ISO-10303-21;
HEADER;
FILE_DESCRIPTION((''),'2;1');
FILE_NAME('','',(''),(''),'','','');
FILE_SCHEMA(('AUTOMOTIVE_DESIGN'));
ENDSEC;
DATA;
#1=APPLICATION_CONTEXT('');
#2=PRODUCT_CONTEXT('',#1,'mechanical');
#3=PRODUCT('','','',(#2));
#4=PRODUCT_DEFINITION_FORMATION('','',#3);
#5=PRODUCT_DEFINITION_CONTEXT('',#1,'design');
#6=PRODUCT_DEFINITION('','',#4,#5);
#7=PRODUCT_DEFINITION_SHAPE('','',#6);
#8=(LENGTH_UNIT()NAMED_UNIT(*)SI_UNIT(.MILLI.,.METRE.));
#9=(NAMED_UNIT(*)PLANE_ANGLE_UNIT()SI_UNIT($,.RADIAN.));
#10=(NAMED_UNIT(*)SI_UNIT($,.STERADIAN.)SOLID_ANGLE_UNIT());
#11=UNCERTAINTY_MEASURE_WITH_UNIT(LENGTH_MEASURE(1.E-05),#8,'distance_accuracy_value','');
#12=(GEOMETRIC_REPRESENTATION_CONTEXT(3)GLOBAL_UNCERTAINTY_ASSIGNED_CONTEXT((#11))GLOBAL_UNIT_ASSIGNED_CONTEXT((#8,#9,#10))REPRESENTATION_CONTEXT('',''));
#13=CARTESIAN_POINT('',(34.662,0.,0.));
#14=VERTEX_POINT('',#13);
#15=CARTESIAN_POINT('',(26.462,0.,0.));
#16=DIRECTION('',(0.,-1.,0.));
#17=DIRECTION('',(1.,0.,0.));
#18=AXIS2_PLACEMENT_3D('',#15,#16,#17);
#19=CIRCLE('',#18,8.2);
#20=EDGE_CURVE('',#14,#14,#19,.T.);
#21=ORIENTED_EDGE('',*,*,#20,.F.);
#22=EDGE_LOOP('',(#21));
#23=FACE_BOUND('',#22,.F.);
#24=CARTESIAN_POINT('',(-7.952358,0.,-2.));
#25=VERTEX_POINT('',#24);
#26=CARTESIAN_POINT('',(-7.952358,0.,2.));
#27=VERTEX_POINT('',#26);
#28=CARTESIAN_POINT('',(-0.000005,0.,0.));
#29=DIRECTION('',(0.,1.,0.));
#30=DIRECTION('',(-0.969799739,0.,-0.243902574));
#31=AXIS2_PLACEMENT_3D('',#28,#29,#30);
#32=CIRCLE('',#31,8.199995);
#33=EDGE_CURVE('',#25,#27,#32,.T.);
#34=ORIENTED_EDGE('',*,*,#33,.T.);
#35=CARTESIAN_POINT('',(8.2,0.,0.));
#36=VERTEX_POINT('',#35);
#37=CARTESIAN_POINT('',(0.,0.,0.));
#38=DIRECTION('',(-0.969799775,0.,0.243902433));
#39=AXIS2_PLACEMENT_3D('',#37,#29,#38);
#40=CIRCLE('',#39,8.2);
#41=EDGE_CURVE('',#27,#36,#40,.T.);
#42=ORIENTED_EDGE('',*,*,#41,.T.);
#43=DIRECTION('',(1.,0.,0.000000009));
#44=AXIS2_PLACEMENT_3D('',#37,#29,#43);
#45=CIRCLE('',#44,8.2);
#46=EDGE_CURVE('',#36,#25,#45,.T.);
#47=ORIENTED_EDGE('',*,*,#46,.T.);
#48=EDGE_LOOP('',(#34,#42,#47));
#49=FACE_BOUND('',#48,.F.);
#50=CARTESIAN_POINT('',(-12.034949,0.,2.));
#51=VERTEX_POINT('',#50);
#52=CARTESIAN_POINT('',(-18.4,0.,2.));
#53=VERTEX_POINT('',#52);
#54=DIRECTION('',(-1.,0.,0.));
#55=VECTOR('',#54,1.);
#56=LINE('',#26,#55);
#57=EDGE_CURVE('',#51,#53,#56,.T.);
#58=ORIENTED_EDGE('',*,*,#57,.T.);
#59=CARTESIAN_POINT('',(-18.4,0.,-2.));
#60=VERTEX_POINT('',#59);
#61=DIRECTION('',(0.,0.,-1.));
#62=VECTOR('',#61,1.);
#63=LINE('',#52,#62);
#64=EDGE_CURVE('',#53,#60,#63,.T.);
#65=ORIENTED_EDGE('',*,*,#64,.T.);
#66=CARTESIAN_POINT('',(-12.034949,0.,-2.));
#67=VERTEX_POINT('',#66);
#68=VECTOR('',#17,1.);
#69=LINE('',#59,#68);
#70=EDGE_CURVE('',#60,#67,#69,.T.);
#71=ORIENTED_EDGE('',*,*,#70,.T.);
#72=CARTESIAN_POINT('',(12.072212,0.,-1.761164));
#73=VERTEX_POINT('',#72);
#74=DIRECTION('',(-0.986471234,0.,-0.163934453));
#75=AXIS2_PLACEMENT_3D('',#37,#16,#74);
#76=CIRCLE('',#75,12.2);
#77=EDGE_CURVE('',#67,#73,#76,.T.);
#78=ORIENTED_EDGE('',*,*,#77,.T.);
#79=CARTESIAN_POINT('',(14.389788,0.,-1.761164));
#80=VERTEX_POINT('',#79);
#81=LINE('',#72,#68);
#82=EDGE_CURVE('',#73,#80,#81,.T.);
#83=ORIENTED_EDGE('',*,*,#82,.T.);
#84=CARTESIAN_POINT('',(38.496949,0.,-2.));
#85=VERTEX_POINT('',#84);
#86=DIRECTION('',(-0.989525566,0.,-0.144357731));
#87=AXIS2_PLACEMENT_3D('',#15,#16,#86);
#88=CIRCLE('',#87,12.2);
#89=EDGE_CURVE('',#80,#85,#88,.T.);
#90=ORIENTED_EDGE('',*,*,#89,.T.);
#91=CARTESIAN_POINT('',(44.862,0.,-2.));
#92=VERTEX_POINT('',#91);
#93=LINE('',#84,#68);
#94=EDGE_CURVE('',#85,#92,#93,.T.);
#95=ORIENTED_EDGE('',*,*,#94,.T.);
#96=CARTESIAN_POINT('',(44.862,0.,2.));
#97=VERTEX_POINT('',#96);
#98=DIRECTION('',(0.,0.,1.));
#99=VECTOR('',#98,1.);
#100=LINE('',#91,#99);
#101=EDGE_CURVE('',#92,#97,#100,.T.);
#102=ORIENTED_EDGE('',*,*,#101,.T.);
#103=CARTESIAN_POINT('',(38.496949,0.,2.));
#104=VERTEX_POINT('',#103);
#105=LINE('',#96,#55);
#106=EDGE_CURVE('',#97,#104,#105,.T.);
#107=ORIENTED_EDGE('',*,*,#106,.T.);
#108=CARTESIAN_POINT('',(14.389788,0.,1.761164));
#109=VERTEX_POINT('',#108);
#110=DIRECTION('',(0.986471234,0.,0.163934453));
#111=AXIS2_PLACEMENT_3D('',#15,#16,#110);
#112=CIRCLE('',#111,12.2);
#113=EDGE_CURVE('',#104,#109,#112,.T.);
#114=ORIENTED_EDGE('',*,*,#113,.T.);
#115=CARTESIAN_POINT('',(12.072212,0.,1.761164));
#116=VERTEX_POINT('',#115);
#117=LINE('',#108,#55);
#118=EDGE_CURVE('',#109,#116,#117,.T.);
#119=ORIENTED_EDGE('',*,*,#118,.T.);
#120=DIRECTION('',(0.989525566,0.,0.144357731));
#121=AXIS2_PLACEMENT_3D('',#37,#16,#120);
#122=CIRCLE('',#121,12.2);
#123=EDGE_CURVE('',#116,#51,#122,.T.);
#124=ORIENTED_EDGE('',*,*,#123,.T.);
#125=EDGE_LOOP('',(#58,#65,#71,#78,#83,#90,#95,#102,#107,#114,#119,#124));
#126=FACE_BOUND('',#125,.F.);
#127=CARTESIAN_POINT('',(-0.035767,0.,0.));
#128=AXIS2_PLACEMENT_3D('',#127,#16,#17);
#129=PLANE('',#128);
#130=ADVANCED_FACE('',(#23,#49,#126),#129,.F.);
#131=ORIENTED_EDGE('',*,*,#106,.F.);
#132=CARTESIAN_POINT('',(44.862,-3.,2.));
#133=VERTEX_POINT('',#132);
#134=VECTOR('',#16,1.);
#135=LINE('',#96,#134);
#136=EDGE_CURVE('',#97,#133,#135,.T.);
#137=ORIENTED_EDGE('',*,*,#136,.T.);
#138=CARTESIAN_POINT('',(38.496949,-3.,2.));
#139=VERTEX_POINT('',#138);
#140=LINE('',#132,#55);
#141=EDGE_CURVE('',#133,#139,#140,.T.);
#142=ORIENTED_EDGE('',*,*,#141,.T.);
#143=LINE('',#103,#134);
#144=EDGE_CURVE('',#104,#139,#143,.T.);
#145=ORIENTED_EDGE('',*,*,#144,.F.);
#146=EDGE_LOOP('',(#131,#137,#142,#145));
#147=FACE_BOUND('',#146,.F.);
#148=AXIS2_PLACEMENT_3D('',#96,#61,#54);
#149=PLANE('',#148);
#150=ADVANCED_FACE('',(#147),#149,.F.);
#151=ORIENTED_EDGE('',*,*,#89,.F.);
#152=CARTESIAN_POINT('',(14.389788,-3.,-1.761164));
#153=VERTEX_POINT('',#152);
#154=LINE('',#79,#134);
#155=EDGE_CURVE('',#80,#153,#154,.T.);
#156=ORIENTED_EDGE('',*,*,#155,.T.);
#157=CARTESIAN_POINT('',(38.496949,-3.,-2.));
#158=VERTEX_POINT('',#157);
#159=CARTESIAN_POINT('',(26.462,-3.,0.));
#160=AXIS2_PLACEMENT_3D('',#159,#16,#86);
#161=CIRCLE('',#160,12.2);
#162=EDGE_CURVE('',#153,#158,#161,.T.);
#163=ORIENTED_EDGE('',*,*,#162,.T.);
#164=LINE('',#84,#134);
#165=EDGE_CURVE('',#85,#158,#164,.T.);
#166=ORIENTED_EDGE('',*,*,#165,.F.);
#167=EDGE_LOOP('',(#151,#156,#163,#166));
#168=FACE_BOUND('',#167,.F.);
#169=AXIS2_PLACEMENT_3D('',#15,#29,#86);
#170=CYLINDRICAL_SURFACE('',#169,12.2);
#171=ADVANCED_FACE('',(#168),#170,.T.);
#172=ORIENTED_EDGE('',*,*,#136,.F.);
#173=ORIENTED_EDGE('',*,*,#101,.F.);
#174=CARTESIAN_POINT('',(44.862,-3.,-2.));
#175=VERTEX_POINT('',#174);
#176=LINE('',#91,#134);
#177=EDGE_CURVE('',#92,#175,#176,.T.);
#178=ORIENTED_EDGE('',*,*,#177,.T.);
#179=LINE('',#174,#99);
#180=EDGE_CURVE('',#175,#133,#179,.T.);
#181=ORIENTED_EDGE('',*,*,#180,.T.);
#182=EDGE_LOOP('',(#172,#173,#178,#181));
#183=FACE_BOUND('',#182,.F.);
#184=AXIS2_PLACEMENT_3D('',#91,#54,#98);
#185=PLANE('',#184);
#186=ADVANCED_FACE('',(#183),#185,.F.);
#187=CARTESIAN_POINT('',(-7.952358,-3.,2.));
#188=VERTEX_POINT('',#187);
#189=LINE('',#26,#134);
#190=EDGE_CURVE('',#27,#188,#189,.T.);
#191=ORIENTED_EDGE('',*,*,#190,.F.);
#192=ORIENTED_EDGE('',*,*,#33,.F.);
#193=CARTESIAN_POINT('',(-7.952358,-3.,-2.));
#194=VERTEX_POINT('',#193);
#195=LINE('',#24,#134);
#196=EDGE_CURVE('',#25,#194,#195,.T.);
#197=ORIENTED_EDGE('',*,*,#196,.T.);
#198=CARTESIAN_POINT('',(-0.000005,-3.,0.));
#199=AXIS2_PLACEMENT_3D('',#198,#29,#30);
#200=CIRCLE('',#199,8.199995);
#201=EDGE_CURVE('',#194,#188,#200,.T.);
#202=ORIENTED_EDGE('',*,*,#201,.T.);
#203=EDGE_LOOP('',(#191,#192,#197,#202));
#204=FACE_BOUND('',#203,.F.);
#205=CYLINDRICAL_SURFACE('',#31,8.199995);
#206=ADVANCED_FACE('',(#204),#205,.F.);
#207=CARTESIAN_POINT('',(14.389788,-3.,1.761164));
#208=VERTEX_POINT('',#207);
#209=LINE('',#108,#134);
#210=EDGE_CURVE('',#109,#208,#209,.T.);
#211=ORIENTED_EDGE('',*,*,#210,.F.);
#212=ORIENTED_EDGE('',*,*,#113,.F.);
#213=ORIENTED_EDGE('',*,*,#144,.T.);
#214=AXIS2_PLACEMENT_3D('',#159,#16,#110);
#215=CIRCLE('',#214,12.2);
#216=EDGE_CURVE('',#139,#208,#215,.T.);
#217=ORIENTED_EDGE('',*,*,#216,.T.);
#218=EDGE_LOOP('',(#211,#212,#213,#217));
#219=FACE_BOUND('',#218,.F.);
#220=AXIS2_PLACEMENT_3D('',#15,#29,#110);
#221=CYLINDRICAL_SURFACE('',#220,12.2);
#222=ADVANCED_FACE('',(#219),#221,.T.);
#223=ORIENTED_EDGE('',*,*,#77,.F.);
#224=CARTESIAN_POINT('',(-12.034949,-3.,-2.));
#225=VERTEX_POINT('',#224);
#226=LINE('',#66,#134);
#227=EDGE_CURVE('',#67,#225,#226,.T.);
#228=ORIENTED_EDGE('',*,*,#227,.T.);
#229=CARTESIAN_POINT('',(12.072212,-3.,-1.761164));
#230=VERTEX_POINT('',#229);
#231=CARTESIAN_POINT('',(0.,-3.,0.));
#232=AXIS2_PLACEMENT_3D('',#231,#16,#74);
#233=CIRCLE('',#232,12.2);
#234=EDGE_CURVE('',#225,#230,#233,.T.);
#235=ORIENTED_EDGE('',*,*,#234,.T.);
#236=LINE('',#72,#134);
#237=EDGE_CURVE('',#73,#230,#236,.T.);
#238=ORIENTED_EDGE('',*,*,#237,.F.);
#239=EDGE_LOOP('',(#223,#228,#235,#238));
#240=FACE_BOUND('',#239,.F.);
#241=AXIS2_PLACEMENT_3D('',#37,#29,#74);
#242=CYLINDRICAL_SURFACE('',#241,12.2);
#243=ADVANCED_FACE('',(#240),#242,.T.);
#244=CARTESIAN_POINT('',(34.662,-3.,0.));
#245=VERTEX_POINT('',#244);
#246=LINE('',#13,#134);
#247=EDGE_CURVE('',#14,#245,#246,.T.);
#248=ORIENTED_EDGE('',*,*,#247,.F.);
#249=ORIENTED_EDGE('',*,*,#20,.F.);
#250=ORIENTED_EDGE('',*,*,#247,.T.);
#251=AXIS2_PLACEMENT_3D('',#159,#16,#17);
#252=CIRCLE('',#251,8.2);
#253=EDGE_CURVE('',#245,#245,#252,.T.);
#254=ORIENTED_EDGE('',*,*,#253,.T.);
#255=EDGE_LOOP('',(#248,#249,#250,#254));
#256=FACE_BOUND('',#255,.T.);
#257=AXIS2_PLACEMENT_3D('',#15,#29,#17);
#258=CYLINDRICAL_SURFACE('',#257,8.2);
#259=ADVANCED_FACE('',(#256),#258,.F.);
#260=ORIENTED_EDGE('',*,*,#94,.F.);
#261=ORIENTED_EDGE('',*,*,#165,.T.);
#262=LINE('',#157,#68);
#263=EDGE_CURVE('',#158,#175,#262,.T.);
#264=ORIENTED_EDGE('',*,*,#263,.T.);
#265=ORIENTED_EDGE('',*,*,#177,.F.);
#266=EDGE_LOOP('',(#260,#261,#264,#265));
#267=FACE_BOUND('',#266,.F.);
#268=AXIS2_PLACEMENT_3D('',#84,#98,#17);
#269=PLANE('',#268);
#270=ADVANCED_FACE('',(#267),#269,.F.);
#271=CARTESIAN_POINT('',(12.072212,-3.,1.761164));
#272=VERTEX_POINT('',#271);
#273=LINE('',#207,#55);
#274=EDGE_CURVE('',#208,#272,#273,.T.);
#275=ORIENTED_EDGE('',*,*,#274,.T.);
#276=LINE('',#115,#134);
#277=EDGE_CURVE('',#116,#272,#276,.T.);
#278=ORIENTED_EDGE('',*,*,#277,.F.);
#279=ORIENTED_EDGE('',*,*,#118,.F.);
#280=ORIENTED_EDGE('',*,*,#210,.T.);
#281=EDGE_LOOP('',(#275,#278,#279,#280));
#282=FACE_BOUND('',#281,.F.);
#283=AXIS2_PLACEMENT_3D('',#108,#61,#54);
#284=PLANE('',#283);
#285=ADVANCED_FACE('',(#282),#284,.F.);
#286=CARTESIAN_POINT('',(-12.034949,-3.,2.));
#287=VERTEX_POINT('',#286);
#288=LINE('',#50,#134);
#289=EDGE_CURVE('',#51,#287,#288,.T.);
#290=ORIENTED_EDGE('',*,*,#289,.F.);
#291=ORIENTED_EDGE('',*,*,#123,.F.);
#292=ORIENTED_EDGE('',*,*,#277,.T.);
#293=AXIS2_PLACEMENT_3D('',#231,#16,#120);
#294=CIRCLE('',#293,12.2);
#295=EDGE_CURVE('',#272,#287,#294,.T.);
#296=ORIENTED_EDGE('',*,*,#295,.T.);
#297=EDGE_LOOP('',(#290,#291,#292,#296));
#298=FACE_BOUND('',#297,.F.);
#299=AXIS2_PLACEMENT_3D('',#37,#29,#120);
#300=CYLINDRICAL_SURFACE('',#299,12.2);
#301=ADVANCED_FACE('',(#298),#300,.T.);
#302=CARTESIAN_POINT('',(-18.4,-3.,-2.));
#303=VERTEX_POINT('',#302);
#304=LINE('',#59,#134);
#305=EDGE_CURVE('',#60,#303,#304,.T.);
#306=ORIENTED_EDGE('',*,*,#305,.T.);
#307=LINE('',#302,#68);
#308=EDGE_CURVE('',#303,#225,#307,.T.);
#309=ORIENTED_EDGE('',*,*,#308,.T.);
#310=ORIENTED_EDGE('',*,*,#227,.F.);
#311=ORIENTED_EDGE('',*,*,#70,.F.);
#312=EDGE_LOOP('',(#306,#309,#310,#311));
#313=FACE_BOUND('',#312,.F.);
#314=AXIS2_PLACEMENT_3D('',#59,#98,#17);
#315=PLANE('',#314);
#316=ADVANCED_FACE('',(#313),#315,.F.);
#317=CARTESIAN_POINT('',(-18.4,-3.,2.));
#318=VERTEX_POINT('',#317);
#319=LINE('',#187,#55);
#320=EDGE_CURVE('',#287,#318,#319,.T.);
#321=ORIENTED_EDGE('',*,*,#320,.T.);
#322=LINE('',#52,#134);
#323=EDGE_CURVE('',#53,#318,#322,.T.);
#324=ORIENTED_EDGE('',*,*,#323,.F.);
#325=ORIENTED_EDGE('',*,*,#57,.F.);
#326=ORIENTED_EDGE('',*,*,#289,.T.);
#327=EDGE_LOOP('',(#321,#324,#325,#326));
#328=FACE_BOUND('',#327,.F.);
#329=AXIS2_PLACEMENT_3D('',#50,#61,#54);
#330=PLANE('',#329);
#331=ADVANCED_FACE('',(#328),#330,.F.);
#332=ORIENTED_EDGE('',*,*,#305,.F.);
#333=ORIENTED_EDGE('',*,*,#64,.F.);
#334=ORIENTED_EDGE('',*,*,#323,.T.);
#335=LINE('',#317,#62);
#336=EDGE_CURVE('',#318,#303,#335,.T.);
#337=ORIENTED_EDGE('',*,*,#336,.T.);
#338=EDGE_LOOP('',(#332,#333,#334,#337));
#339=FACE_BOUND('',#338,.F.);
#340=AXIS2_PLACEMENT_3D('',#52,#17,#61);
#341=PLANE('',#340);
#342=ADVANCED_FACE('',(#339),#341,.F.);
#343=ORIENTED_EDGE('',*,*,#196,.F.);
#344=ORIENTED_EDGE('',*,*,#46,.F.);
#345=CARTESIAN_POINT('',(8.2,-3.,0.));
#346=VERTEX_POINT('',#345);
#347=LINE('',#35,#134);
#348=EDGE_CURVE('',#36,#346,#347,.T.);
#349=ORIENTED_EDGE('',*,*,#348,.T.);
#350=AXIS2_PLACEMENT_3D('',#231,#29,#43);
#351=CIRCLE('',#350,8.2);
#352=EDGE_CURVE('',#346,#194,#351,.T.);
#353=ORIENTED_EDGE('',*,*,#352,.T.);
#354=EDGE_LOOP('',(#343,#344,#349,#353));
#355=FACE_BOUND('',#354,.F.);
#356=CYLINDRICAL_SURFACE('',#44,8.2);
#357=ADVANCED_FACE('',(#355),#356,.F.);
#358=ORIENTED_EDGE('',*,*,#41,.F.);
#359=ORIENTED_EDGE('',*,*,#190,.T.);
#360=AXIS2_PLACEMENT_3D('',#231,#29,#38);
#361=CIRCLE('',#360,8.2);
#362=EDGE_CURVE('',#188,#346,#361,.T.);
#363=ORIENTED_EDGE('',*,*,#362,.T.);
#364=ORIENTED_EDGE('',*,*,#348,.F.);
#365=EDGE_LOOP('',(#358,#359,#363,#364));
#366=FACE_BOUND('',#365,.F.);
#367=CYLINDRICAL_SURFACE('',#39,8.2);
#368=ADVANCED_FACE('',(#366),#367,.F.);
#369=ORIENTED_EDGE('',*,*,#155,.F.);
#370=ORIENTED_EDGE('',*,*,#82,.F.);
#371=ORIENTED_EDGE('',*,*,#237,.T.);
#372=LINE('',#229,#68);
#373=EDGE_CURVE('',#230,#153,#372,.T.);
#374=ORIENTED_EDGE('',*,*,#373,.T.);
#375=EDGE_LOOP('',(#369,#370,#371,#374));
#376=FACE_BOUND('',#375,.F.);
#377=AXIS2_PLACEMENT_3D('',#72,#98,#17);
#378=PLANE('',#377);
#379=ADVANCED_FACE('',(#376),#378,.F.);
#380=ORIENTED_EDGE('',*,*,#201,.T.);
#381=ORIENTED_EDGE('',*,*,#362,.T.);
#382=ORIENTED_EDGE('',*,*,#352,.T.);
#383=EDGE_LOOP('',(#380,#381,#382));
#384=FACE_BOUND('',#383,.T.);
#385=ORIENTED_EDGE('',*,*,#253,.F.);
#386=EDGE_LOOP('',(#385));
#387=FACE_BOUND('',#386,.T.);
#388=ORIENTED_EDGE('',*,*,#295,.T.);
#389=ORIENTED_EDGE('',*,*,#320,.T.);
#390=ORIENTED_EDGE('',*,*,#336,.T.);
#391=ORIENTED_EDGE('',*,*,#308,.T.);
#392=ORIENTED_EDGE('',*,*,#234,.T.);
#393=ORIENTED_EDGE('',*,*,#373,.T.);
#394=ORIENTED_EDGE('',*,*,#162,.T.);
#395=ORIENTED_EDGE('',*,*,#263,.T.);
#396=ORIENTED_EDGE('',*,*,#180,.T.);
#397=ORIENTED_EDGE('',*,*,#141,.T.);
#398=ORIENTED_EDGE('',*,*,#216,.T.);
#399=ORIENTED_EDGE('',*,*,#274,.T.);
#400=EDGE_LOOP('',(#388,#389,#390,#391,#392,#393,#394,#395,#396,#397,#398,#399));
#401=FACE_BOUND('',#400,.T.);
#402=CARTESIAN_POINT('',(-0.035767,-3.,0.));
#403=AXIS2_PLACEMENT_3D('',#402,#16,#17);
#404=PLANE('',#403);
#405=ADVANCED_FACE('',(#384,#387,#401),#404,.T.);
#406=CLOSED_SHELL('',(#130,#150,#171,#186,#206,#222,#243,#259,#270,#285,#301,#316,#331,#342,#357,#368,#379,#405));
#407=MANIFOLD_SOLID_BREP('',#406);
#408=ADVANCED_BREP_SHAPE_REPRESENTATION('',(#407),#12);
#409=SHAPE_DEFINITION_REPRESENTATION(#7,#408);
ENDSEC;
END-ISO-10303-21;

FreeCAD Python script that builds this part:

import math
import FreeCAD as App
import Part
import Sketcher

V = App.Vector

doc = App.newDocument("Part")
body = doc.addObject("PartDesign::Body", "Body")

# Sketch on XZ plane
sketch1 = body.newObject("Sketcher::SketchObject", "Sketch")
sketch1.AttachmentSupport = (doc.getObject("XZ_Plane"), [""])
sketch1.MapMode = "FlatFace"
sketch1.addGeometry([
    Part.ArcOfCircle(Part.Circle(V(0, 0, 0), V(0, 0, 1), 12.2), math.radians(-171), math.radians(-8)),  # 0
    Part.LineSegment(V(12.1, -1.8, 0), V(14.4, -1.8, 0)),  # 1
    Part.ArcOfCircle(Part.Circle(V(26.5, 0, 0), V(0, 0, 1), 12.2), math.radians(-172), math.radians(-9)),  # 2
    Part.LineSegment(V(38.5, -2, 0), V(44.9, -2, 0)),  # 3
    Part.LineSegment(V(44.9, -2, 0), V(44.9, 2, 0)),  # 4
    Part.LineSegment(V(44.9, 2, 0), V(38.5, 2, 0)),  # 5
    Part.ArcOfCircle(Part.Circle(V(26.5, 0, 0), V(0, 0, 1), 12.2), math.radians(9), math.radians(172)),  # 6
    Part.LineSegment(V(14.4, 1.8, 0), V(12.1, 1.8, 0)),  # 7
    Part.ArcOfCircle(Part.Circle(V(0, 0, 0), V(0, 0, 1), 12.2), math.radians(8), math.radians(171)),  # 8
    Part.LineSegment(V(-12, 2, 0), V(-18.4, 2, 0)),  # 9
    Part.LineSegment(V(-18.4, 2, 0), V(-18.4, -2, 0)),  # 10
    Part.LineSegment(V(-18.4, -2, 0), V(-12, -2, 0)),  # 11
    Part.ArcOfCircle(Part.Circle(V(0, 0, 0), V(0, 0, 1), 8.2), math.radians(0), math.radians(166)),  # 12
    Part.ArcOfCircle(Part.Circle(V(0, 0, 0), V(0, 0, 1), 8.2), math.radians(-166), math.radians(0)),  # 13
    Part.ArcOfCircle(Part.Circle(V(0, 0, 0), V(0, 0, 1), 8.2), math.radians(166), math.radians(194)),  # 14
    Part.Circle(V(26.5, 0, 0), V(0, 0, 1), 8.2),  # 15
], False)
sketch1.addConstraint([
    Sketcher.Constraint("Coincident", 0, 2, 1, 1),
    Sketcher.Constraint("Coincident", 1, 2, 2, 1),
    Sketcher.Constraint("Coincident", 2, 2, 3, 1),
    Sketcher.Constraint("Coincident", 3, 2, 4, 1),
    Sketcher.Constraint("Coincident", 4, 2, 5, 1),
    Sketcher.Constraint("Coincident", 5, 2, 6, 1),
    Sketcher.Constraint("Coincident", 6, 2, 7, 1),
    Sketcher.Constraint("Coincident", 7, 2, 8, 1),
    Sketcher.Constraint("Coincident", 8, 2, 9, 1),
    Sketcher.Constraint("Coincident", 9, 2, 10, 1),
    Sketcher.Constraint("Coincident", 10, 2, 11, 1),
    Sketcher.Constraint("Coincident", 11, 2, 0, 1),
    Sketcher.Constraint("Tangent", 12, 1, 13, 2),
    Sketcher.Constraint("Tangent", 13, 1, 14, 2),
    Sketcher.Constraint("Tangent", 14, 1, 12, 2),
    Sketcher.Constraint("Horizontal", 1),
    Sketcher.Constraint("Horizontal", 3),
    Sketcher.Constraint("Vertical", 4),
    Sketcher.Constraint("Horizontal", 5),
    Sketcher.Constraint("Horizontal", 7),
    Sketcher.Constraint("Horizontal", 9),
    Sketcher.Constraint("Vertical", 10),
    Sketcher.Constraint("Horizontal", 11),
    Sketcher.Constraint("Coincident", 0, 3, -1, 1),
    Sketcher.Constraint("Coincident", 8, 3, -1, 1),
    Sketcher.Constraint("Coincident", 12, 3, -1, 1),
    Sketcher.Constraint("Coincident", 6, 3, 2, 3),
    Sketcher.Constraint("Coincident", 15, 3, 2, 3),
    Sketcher.Constraint("Equal", 0, 2),
    Sketcher.Constraint("Equal", 2, 6),
    Sketcher.Constraint("Equal", 6, 8),
    Sketcher.Constraint("Equal", 13, 15),
    Sketcher.Constraint("Symmetric", 2, 2, 5, 2, -1),
    Sketcher.Constraint("PointOnObject", 12, 1, -1),
    Sketcher.Constraint("Horizontal", 5, 2, 8, 2),
    Sketcher.Constraint("Horizontal", 3, 2, 10, 2),
    Sketcher.Constraint("Horizontal", 11, 2, 13, 1),
    Sketcher.Constraint("Horizontal", 9, 2, 14, 1),
    Sketcher.Constraint("Vertical", 1, 2, 6, 2),
    Sketcher.Constraint("Equal", 5, 9),
    Sketcher.Constraint("Diameter", 15, 16.4),
    Sketcher.Constraint("Radius", 0, 12.2),
    Sketcher.Constraint("DistanceY", 4, 1, 4, 2, 4.0),
    Sketcher.Constraint("DistanceX", 9, 2, -1, 1, 18.4),
    Sketcher.Constraint("DistanceX", -1, 1, 2, 3, 26.462),
    Sketcher.Constraint("DistanceX", 1, 1, 1, 2, 2.317576),
])
pad1 = body.newObject("PartDesign::Pad", "Pad")
pad1.Profile = sketch1
pad1.Length = 3

doc.recompute()
